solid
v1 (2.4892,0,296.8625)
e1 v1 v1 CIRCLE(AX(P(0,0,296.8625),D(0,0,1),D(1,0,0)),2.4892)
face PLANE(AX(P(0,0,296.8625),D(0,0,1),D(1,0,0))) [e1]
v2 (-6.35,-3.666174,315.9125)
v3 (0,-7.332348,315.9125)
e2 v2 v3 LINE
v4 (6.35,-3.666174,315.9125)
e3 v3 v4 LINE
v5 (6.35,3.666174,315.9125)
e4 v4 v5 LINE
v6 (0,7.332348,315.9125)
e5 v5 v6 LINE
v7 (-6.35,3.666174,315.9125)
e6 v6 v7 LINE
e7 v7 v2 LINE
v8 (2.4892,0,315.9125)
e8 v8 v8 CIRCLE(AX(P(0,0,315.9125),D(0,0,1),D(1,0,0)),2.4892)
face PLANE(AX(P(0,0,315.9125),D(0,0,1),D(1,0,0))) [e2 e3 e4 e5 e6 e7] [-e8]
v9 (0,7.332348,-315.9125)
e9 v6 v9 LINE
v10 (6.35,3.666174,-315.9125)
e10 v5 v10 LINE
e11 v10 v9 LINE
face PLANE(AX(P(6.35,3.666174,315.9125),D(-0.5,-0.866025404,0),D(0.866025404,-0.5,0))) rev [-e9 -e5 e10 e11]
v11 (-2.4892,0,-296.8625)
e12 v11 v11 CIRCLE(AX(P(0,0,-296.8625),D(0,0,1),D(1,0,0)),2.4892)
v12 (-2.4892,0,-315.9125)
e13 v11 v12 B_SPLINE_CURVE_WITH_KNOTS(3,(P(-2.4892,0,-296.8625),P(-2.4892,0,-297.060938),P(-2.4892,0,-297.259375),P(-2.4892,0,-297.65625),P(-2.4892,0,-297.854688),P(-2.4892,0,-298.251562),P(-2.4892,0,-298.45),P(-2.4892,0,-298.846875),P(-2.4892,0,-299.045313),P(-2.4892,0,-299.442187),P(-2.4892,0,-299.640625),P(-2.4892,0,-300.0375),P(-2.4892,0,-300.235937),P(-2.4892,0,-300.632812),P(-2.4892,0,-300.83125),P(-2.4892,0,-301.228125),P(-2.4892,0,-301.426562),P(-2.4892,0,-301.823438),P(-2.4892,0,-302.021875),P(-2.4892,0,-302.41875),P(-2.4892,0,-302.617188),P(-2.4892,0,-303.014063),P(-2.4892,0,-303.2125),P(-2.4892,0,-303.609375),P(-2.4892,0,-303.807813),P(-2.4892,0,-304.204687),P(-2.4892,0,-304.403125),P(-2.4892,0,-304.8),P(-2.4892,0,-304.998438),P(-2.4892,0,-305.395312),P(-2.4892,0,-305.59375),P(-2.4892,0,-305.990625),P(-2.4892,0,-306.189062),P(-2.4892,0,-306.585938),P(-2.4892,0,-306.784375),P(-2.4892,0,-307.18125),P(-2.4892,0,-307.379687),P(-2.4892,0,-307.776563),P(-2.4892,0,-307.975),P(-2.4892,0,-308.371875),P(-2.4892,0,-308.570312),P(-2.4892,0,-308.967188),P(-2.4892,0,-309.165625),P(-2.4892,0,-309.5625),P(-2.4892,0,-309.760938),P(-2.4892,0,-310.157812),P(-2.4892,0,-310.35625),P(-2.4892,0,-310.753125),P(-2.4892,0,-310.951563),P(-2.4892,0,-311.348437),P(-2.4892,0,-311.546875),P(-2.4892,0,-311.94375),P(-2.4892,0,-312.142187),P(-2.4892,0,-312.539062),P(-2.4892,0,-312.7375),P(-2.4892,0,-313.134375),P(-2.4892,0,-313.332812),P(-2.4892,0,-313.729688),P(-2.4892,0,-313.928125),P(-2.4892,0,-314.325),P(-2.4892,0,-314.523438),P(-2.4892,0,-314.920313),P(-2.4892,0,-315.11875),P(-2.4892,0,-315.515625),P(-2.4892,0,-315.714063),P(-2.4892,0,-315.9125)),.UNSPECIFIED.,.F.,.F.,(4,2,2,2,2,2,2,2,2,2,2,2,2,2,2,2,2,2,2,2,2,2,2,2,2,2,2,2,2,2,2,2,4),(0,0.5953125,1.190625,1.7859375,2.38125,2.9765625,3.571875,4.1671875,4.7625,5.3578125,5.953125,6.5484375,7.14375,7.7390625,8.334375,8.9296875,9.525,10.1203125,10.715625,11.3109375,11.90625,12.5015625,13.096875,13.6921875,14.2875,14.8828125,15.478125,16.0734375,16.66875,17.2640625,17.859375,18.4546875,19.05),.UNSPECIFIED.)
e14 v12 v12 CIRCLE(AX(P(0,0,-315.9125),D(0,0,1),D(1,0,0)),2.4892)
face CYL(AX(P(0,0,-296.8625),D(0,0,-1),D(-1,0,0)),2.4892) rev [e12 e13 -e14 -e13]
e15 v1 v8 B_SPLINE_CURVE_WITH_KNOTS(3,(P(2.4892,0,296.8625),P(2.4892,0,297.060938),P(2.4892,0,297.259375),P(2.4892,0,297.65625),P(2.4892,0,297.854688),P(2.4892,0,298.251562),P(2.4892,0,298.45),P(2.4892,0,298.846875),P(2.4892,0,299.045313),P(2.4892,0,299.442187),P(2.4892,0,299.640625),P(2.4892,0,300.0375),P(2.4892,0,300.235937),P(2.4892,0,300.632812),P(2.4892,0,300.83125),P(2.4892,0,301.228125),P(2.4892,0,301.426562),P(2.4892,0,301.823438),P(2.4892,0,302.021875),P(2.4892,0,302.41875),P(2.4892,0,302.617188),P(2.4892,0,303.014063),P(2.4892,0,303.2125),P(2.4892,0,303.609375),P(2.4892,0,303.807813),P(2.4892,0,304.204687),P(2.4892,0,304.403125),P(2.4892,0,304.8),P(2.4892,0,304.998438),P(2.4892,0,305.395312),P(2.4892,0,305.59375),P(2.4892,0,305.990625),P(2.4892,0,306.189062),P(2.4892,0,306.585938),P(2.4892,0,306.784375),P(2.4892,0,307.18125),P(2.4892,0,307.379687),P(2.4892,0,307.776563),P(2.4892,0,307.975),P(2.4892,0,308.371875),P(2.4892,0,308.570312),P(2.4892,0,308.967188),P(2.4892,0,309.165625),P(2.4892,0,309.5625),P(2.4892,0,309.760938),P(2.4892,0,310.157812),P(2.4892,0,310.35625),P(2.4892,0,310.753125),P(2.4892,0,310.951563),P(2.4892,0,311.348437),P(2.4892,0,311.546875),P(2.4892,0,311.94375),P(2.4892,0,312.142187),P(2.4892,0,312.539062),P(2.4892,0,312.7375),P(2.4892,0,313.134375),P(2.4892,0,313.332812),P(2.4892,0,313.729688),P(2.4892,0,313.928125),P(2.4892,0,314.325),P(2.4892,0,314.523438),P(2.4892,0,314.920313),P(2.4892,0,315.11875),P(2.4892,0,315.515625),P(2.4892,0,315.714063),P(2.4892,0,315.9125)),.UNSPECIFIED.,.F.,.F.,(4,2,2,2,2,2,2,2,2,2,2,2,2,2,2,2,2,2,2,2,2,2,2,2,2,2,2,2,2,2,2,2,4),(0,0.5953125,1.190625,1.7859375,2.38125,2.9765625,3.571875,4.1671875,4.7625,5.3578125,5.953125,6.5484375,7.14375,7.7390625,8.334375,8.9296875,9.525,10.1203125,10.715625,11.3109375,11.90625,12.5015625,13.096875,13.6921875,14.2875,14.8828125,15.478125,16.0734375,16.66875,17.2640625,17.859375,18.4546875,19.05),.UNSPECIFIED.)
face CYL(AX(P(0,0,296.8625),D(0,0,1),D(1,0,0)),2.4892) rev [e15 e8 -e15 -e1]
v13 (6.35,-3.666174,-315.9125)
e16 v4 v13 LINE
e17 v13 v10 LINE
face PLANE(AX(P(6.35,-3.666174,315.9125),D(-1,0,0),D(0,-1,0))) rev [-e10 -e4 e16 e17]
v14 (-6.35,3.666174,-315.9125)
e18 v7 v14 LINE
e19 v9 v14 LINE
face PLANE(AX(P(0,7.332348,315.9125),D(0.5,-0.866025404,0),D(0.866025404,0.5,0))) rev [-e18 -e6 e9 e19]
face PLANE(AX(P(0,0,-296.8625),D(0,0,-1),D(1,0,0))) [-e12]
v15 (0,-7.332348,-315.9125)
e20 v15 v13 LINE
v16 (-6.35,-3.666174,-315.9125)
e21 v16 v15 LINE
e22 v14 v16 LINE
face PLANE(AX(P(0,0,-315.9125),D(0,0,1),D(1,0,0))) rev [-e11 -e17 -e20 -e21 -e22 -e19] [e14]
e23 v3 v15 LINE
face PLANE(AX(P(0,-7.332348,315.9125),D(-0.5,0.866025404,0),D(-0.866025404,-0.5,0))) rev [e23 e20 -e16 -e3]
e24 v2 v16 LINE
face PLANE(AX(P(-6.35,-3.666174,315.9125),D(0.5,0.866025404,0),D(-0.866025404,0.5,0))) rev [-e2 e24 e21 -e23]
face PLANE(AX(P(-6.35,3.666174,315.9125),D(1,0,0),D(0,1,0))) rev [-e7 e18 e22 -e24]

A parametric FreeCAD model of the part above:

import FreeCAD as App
import Part
import Sketcher
Q = App.Units.Quantity


def add_polygon(sketch, points):
    """Adds a closed chain of lines whose ends are joined by coincident constraints."""
    first, n = sketch.GeometryCount, len(points)
    for a, b in zip(points, points[1:] + points[:1]):
        sketch.addGeometry(Part.LineSegment(App.Vector(*a, 0), App.Vector(*b, 0)), False)
    for i in range(n):
        sketch.addConstraint(Sketcher.Constraint("Coincident", first + i, 2, first + (i + 1) % n, 1))

doc = App.newDocument("Part")
body = doc.addObject("PartDesign::Body", "Body")

sketch1 = body.newObject("Sketcher::SketchObject", "Sketch")
sketch1.AttachmentSupport = (doc.getObject("XY_Plane"), [""])
sketch1.MapMode = "FlatFace"
add_polygon(sketch1, [(6.35, -3.666174), (6.35, 3.666174), (0, 7.332348), (-6.35, 3.666174), (-6.35, -3.666174), (0, -7.332348)])
sketch1.addConstraint([
    Sketcher.Constraint("Vertical", 0),
    Sketcher.Constraint("Vertical", 3),
    Sketcher.Constraint("Symmetric", 0, 2, 3, 2, -1, 1),
    Sketcher.Constraint("Symmetric", 1, 2, 4, 2, -1, 1),
    Sketcher.Constraint("PointOnObject", 1, 2, -2),
    Sketcher.Constraint("Parallel", 2, 5),
    Sketcher.Constraint("Horizontal", 0, 2, 2, 2),
    Sketcher.Constraint("Angle", 1, Q("150 deg")),
    Sketcher.Constraint("DistanceX", 2, 2, 0, 2, Q("0.5 in")),
    Sketcher.Constraint("DistanceY", 0, 1, 0, 2, 7.332348),
])
pad1 = body.newObject("PartDesign::Pad", "Pad")
pad1.Profile = sketch1
pad1.Length = Q("24.875 in")
pad1.Midplane = True

sketch2 = body.newObject("Sketcher::SketchObject", "Sketch001")
sketch2.AttachmentSupport = (doc.getObject("XY_Plane"), [""])
sketch2.MapMode = "FlatFace"
sketch2.AttachmentOffset = App.Placement(App.Vector(0, 0, 12.4375 * 25.4), App.Rotation())
sketch2.addGeometry(Part.Circle(App.Vector(0, 0, 0), App.Vector(0, 0, 1), 2.4892), False)
sketch2.addConstraint([
    Sketcher.Constraint("Coincident", 0, 3, -1, 1),
    Sketcher.Constraint("Diameter", 0, Q("0.196 in")),
])
pocket1 = body.newObject("PartDesign::Pocket", "Pocket")
pocket1.Profile = sketch2
pocket1.Length = Q("0.75 in")
doc.recompute()

mirrored = body.newObject("PartDesign::Mirrored", "Mirrored")
mirrored.Originals = [pocket1]
mirrored.MirrorPlane = (doc.getObject("XY_Plane"), [""])
body.Tip = mirrored

doc.recompute()
